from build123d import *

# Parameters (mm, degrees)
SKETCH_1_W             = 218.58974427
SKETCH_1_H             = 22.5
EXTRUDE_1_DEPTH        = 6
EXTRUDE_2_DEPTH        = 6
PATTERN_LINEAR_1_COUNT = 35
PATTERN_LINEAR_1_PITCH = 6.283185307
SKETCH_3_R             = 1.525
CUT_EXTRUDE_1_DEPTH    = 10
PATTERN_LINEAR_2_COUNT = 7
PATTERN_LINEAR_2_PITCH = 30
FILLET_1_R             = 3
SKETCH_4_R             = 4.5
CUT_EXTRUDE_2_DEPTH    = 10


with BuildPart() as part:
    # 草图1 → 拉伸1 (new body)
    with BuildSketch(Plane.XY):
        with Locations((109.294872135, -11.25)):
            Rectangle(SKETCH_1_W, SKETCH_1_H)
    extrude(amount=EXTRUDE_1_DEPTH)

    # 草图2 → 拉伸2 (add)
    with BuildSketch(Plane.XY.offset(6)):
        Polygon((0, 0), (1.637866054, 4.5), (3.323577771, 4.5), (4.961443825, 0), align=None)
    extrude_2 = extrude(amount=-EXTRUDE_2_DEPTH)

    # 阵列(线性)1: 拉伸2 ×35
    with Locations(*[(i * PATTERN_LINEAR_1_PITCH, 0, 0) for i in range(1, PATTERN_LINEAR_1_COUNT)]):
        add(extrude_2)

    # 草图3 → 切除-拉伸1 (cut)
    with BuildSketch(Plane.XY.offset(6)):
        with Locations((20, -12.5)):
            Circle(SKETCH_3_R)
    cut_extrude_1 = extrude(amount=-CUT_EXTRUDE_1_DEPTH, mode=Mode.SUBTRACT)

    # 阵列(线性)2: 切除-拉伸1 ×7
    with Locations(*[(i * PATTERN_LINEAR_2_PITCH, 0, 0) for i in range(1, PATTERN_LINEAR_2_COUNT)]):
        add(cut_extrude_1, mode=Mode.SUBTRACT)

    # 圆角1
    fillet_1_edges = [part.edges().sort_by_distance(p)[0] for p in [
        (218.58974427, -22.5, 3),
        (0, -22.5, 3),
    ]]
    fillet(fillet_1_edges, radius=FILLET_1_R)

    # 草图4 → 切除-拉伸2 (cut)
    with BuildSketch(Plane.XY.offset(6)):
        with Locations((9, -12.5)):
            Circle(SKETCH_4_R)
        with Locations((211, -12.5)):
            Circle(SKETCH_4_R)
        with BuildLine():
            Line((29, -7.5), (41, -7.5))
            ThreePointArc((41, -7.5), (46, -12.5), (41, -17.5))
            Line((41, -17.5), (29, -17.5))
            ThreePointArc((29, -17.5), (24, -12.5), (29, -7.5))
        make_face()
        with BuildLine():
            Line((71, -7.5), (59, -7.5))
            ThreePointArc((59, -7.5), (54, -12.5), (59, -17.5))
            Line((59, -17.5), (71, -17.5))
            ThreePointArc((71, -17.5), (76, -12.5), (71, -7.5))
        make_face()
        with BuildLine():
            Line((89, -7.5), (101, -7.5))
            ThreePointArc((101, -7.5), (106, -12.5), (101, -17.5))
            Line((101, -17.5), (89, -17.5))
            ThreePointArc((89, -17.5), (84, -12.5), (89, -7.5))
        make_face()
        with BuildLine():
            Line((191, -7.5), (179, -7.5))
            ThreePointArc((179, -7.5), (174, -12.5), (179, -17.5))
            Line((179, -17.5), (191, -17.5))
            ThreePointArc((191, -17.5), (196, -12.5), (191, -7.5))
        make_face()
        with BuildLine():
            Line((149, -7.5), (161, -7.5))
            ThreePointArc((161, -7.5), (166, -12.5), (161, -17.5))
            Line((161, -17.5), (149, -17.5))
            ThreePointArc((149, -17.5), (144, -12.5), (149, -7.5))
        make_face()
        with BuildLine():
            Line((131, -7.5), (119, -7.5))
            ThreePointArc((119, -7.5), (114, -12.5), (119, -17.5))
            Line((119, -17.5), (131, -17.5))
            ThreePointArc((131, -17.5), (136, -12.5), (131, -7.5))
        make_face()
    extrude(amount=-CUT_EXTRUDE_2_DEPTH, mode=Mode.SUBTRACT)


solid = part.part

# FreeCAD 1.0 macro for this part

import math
import FreeCAD as App
import Part
import Sketcher

V = App.Vector
Q = App.Units.Quantity


def edges_at(feature, points):
    """Names of the edges that pass closest to the given points."""
    edges = feature.Shape.Edges
    near = lambda p: min(range(len(edges)), key=lambda i: edges[i].distToShape(Part.Vertex(*p))[0])
    return sorted({f"Edge{near(p) + 1}" for p in points})

doc = App.newDocument("Part")
params = doc.addObject("Spreadsheet::Sheet", "Params")
for row, (alias, value) in enumerate([
    ("sketch1_height", "22.5 mm"),
    ("pad1_length", "6 mm"),
    ("pad2_length", "6 mm"),
    ("linearpattern_pitch", "6.283185 mm"),
    ("sketch3_diameter", "3.05 mm"),
    ("pocket1_length", "10 mm"),
    ("linearpattern2_pitch", "30 mm"),
    ("fillet_radius", "3 mm"),
    ("sketch4_diameter", "9 mm"),
    ("sketch4_radius", "5 mm"),
    ("sketch4_width", "12 mm"),
    ("pocket2_length", "10 mm"),
], start=1):
    params.set(f"A{row}", alias)
    params.set(f"B{row}", "=" + value)
    params.setAlias(f"B{row}", alias)

body = doc.addObject("PartDesign::Body", "Body")

# Sketch on XY plane
sketch1 = body.newObject("Sketcher::SketchObject", "Sketch")
sketch1.AttachmentSupport = (doc.getObject("XY_Plane"), [""])
sketch1.MapMode = "FlatFace"
sketch1.addGeometry([
    Part.LineSegment(V(0, 0, 0), V(0, -22, 0)),
    Part.LineSegment(V(0, -22, 0), V(219, -22, 0)),
    Part.LineSegment(V(219, -22, 0), V(219, 0, 0)),
    Part.LineSegment(V(219, 0, 0), V(0, 0, 0)),
], False)
sketch1.addConstraint([
    Sketcher.Constraint("Coincident", 0, 2, 1, 1),
    Sketcher.Constraint("Coincident", 1, 2, 2, 1),
    Sketcher.Constraint("Coincident", 2, 2, 3, 1),
    Sketcher.Constraint("Coincident", 3, 2, 0, 1),
    Sketcher.Constraint("Vertical", 0),
    Sketcher.Constraint("Horizontal", 1),
    Sketcher.Constraint("Vertical", 2),
    Sketcher.Constraint("Horizontal", 3),
    Sketcher.Constraint("Coincident", 3, 2, -1, 1),
    Sketcher.Constraint("DistanceY", 0, 2, 0, 1, 22.5),
    Sketcher.Constraint("DistanceX", 1, 1, 1, 2, 218.589744),
])
sketch1.setExpression("Constraints[9]", "Params.sketch1_height")
pad1 = body.newObject("PartDesign::Pad", "Pad")
pad1.Profile = sketch1
pad1.setExpression("Length", "Params.pad1_length")

# Sketch on XY plane
sketch2 = body.newObject("Sketcher::SketchObject", "Sketch001")
sketch2.AttachmentSupport = (doc.getObject("XY_Plane"), [""])
sketch2.MapMode = "FlatFace"
sketch2.AttachmentOffset = App.Placement(V(0, 0, 6), App.Rotation())
sketch2.addGeometry([
    Part.LineSegment(V(1.6, 4.5, 0), V(0, 0, 0)),
    Part.LineSegment(V(0, 0, 0), V(5, 0, 0)),
    Part.LineSegment(V(5, 0, 0), V(3.3, 4.5, 0)),
    Part.LineSegment(V(3.3, 4.5, 0), V(1.6, 4.5, 0)),
], False)
sketch2.addConstraint([
    Sketcher.Constraint("Coincident", 0, 2, 1, 1),
    Sketcher.Constraint("Coincident", 1, 2, 2, 1),
    Sketcher.Constraint("Coincident", 2, 2, 3, 1),
    Sketcher.Constraint("Coincident", 3, 2, 0, 1),
    Sketcher.Constraint("Horizontal", 1),
    Sketcher.Constraint("Horizontal", 3),
    Sketcher.Constraint("Coincident", 0, 2, -1, 1),
    Sketcher.Constraint("Equal", 0, 2),
    Sketcher.Constraint("Angle", 0, Q("-110 deg")),
    Sketcher.Constraint("DistanceY", -1, 1, 2, 2, 4.5),
    Sketcher.Constraint("DistanceX", 3, 2, 3, 1, 1.685712),
])
pad2 = body.newObject("PartDesign::Pad", "Pad001")
pad2.Profile = sketch2
pad2.setExpression("Length", "Params.pad2_length")
pad2.Reversed = True
doc.recompute()

linearpattern = body.newObject("PartDesign::LinearPattern", "LinearPattern")
linearpattern.Originals = [pad2]
linearpattern.Direction = (doc.getObject("X_Axis"), [""])
linearpattern.Mode = "offset"
linearpattern.setExpression("Offset", "Params.linearpattern_pitch")
linearpattern.Occurrences = 35
body.Tip = linearpattern

# Sketch on XY plane
sketch3 = body.newObject("Sketcher::SketchObject", "Sketch002")
sketch3.AttachmentSupport = (doc.getObject("XY_Plane"), [""])
sketch3.MapMode = "FlatFace"
sketch3.AttachmentOffset = App.Placement(V(0, 0, 6), App.Rotation())
sketch3.addGeometry(Part.Circle(V(20, -12.5, 0), V(0, 0, 1), 1.5), False)
sketch3.addConstraint([
    Sketcher.Constraint("Diameter", 0, 3.05),
    Sketcher.Constraint("DistanceX", -1, 1, 0, 3, 20.0),
    Sketcher.Constraint("DistanceY", 0, 3, -1, 1, 12.5),
])
sketch3.setExpression("Constraints[0]", "Params.sketch3_diameter")
pocket1 = body.newObject("PartDesign::Pocket", "Pocket")
pocket1.Profile = sketch3
pocket1.setExpression("Length", "Params.pocket1_length")
doc.recompute()

linearpattern2 = body.newObject("PartDesign::LinearPattern", "LinearPattern001")
linearpattern2.Originals = [pocket1]
linearpattern2.Direction = (doc.getObject("X_Axis"), [""])
linearpattern2.Mode = "offset"
linearpattern2.setExpression("Offset", "Params.linearpattern2_pitch")
linearpattern2.Occurrences = 7
body.Tip = linearpattern2
doc.recompute()

fillet = body.newObject("PartDesign::Fillet", "Fillet")
fillet.Base = (linearpattern2, edges_at(linearpattern2, [(218.59, -22.5, 3), (0, -22.5, 3)]))
fillet.setExpression("Radius", "Params.fillet_radius")

# Sketch on XY plane
sketch4 = body.newObject("Sketcher::SketchObject", "Sketch003")
sketch4.AttachmentSupport = (doc.getObject("XY_Plane"), [""])
sketch4.MapMode = "FlatFace"
sketch4.AttachmentOffset = App.Placement(V(0, 0, 6), App.Rotation())
sketch4.addGeometry([
    Part.Circle(V(9, -12.5, 0), V(0, 0, 1), 4.5),  # 0
    Part.Circle(V(211, -12.5, 0), V(0, 0, 1), 4.5),  # 1
    Part.LineSegment(V(41, -7.5, 0), V(29, -7.5, 0)),  # 2
    Part.ArcOfCircle(Part.Circle(V(29, -12.5, 0), V(0, 0, 1), 5), math.radians(90), math.radians(270)),  # 3
    Part.LineSegment(V(29, -17.5, 0), V(41, -17.5, 0)),  # 4
    Part.ArcOfCircle(Part.Circle(V(41, -12.5, 0), V(0, 0, 1), 5), math.radians(-90), math.radians(90)),  # 5
    Part.LineSegment(V(71, -7.5, 0), V(59, -7.5, 0)),  # 6
    Part.ArcOfCircle(Part.Circle(V(59, -12.5, 0), V(0, 0, 1), 5), math.radians(90), math.radians(270)),  # 7
    Part.LineSegment(V(59, -17.5, 0), V(71, -17.5, 0)),  # 8
    Part.ArcOfCircle(Part.Circle(V(71, -12.5, 0), V(0, 0, 1), 5), math.radians(-90), math.radians(90)),  # 9
    Part.LineSegment(V(101, -7.5, 0), V(89, -7.5, 0)),  # 10
    Part.ArcOfCircle(Part.Circle(V(89, -12.5, 0), V(0, 0, 1), 5), math.radians(90), math.radians(270)),  # 11
    Part.LineSegment(V(89, -17.5, 0), V(101, -17.5, 0)),  # 12
    Part.ArcOfCircle(Part.Circle(V(101, -12.5, 0), V(0, 0, 1), 5), math.radians(-90), math.radians(90)),  # 13
    Part.LineSegment(V(191, -7.5, 0), V(179, -7.5, 0)),  # 14
    Part.ArcOfCircle(Part.Circle(V(179, -12.5, 0), V(0, 0, 1), 5), math.radians(90), math.radians(270)),  # 15
    Part.LineSegment(V(179, -17.5, 0), V(191, -17.5, 0)),  # 16
    Part.ArcOfCircle(Part.Circle(V(191, -12.5, 0), V(0, 0, 1), 5), math.radians(-90), math.radians(90)),  # 17
    Part.LineSegment(V(161, -7.5, 0), V(149, -7.5, 0)),  # 18
    Part.ArcOfCircle(Part.Circle(V(149, -12.5, 0), V(0, 0, 1), 5), math.radians(90), math.radians(270)),  # 19
    Part.LineSegment(V(149, -17.5, 0), V(161, -17.5, 0)),  # 20
    Part.ArcOfCircle(Part.Circle(V(161, -12.5, 0), V(0, 0, 1), 5), math.radians(-90), math.radians(90)),  # 21
    Part.LineSegment(V(131, -7.5, 0), V(119, -7.5, 0)),  # 22
    Part.ArcOfCircle(Part.Circle(V(119, -12.5, 0), V(0, 0, 1), 5), math.radians(90), math.radians(270)),  # 23
    Part.LineSegment(V(119, -17.5, 0), V(131, -17.5, 0)),  # 24
    Part.ArcOfCircle(Part.Circle(V(131, -12.5, 0), V(0, 0, 1), 5), math.radians(-90), math.radians(90)),  # 25
], False)
sketch4.addConstraint([
    Sketcher.Constraint("Tangent", 2, 2, 3, 1),
    Sketcher.Constraint("Tangent", 3, 2, 4, 1),
    Sketcher.Constraint("Tangent", 4, 2, 5, 1),
    Sketcher.Constraint("Tangent", 5, 2, 2, 1),
    Sketcher.Constraint("Tangent", 6, 2, 7, 1),
    Sketcher.Constraint("Tangent", 7, 2, 8, 1),
    Sketcher.Constraint("Tangent", 8, 2, 9, 1),
    Sketcher.Constraint("Tangent", 9, 2, 6, 1),
    Sketcher.Constraint("Tangent", 10, 2, 11, 1),
    Sketcher.Constraint("Tangent", 11, 2, 12, 1),
    Sketcher.Constraint("Tangent", 12, 2, 13, 1),
    Sketcher.Constraint("Tangent", 13, 2, 10, 1),
    Sketcher.Constraint("Tangent", 14, 2, 15, 1),
    Sketcher.Constraint("Tangent", 15, 2, 16, 1),
    Sketcher.Constraint("Tangent", 16, 2, 17, 1),
    Sketcher.Constraint("Tangent", 17, 2, 14, 1),
    Sketcher.Constraint("Tangent", 18, 2, 19, 1),
    Sketcher.Constraint("Tangent", 19, 2, 20, 1),
    Sketcher.Constraint("Tangent", 20, 2, 21, 1),
    Sketcher.Constraint("Tangent", 21, 2, 18, 1),
    Sketcher.Constraint("Tangent", 22, 2, 23, 1),
    Sketcher.Constraint("Tangent", 23, 2, 24, 1),
    Sketcher.Constraint("Tangent", 24, 2, 25, 1),
    Sketcher.Constraint("Tangent", 25, 2, 22, 1),
    Sketcher.Constraint("Horizontal", 2),
    Sketcher.Constraint("Horizontal", 4),
    Sketcher.Constraint("Horizontal", 6),
    Sketcher.Constraint("Horizontal", 8),
    Sketcher.Constraint("Horizontal", 10),
    Sketcher.Constraint("Horizontal", 12),
    Sketcher.Constraint("Horizontal", 14),
    Sketcher.Constraint("Horizontal", 16),
    Sketcher.Constraint("Horizontal", 18),
    Sketcher.Constraint("Horizontal", 20),
    Sketcher.Constraint("Horizontal", 22),
    Sketcher.Constraint("Horizontal", 24),
    Sketcher.Constraint("Equal", 0, 1),
    Sketcher.Constraint("Equal", 5, 7),
    Sketcher.Constraint("Equal", 9, 11),
    Sketcher.Constraint("Equal", 13, 15),
    Sketcher.Constraint("Equal", 17, 19),
    Sketcher.Constraint("Equal", 21, 23),
    Sketcher.Constraint("Horizontal", 0, 3, 1, 3),
    Sketcher.Constraint("Horizontal", 1, 3, 3, 3),
    Sketcher.Constraint("Horizontal", 5, 3, 7, 3),
    Sketcher.Constraint("Horizontal", 9, 3, 11, 3),
    Sketcher.Constraint("Horizontal", 13, 3, 15, 3),
    Sketcher.Constraint("Horizontal", 17, 3, 19, 3),
    Sketcher.Constraint("Horizontal", 21, 3, 23, 3),
    Sketcher.Constraint("Equal", 4, 6),
    Sketcher.Constraint("Equal", 8, 10),
    Sketcher.Constraint("Equal", 12, 14),
    Sketcher.Constraint("Equal", 16, 18),
    Sketcher.Constraint("Equal", 20, 22),
    Sketcher.Constraint("Diameter", 0, 9.0),
    Sketcher.Constraint("Radius", 3, 5.0),
    Sketcher.Constraint("DistanceX", 2, 2, 2, 1, 12.0),
    Sketcher.Constraint("DistanceX", -1, 1, 0, 3, 9.0),
    Sketcher.Constraint("DistanceX", -1, 1, 1, 3, 211.0),
    Sketcher.Constraint("DistanceX", -1, 1, 3, 3, 29.0),
    Sketcher.Constraint("DistanceX", -1, 1, 7, 3, 59.0),
    Sketcher.Constraint("DistanceX", -1, 1, 11, 3, 89.0),
    Sketcher.Constraint("DistanceX", -1, 1, 15, 3, 179.0),
    Sketcher.Constraint("DistanceX", -1, 1, 19, 3, 149.0),
    Sketcher.Constraint("DistanceX", -1, 1, 23, 3, 119.0),
    Sketcher.Constraint("DistanceY", 0, 3, -1, 1, 12.5),
])
sketch4.setExpression("Constraints[54]", "Params.sketch4_diameter")
sketch4.setExpression("Constraints[55]", "Params.sketch4_radius")
sketch4.setExpression("Constraints[56]", "Params.sketch4_width")
pocket2 = body.newObject("PartDesign::Pocket", "Pocket001")
pocket2.Profile = sketch4
pocket2.setExpression("Length", "Params.pocket2_length")

doc.recompute()
